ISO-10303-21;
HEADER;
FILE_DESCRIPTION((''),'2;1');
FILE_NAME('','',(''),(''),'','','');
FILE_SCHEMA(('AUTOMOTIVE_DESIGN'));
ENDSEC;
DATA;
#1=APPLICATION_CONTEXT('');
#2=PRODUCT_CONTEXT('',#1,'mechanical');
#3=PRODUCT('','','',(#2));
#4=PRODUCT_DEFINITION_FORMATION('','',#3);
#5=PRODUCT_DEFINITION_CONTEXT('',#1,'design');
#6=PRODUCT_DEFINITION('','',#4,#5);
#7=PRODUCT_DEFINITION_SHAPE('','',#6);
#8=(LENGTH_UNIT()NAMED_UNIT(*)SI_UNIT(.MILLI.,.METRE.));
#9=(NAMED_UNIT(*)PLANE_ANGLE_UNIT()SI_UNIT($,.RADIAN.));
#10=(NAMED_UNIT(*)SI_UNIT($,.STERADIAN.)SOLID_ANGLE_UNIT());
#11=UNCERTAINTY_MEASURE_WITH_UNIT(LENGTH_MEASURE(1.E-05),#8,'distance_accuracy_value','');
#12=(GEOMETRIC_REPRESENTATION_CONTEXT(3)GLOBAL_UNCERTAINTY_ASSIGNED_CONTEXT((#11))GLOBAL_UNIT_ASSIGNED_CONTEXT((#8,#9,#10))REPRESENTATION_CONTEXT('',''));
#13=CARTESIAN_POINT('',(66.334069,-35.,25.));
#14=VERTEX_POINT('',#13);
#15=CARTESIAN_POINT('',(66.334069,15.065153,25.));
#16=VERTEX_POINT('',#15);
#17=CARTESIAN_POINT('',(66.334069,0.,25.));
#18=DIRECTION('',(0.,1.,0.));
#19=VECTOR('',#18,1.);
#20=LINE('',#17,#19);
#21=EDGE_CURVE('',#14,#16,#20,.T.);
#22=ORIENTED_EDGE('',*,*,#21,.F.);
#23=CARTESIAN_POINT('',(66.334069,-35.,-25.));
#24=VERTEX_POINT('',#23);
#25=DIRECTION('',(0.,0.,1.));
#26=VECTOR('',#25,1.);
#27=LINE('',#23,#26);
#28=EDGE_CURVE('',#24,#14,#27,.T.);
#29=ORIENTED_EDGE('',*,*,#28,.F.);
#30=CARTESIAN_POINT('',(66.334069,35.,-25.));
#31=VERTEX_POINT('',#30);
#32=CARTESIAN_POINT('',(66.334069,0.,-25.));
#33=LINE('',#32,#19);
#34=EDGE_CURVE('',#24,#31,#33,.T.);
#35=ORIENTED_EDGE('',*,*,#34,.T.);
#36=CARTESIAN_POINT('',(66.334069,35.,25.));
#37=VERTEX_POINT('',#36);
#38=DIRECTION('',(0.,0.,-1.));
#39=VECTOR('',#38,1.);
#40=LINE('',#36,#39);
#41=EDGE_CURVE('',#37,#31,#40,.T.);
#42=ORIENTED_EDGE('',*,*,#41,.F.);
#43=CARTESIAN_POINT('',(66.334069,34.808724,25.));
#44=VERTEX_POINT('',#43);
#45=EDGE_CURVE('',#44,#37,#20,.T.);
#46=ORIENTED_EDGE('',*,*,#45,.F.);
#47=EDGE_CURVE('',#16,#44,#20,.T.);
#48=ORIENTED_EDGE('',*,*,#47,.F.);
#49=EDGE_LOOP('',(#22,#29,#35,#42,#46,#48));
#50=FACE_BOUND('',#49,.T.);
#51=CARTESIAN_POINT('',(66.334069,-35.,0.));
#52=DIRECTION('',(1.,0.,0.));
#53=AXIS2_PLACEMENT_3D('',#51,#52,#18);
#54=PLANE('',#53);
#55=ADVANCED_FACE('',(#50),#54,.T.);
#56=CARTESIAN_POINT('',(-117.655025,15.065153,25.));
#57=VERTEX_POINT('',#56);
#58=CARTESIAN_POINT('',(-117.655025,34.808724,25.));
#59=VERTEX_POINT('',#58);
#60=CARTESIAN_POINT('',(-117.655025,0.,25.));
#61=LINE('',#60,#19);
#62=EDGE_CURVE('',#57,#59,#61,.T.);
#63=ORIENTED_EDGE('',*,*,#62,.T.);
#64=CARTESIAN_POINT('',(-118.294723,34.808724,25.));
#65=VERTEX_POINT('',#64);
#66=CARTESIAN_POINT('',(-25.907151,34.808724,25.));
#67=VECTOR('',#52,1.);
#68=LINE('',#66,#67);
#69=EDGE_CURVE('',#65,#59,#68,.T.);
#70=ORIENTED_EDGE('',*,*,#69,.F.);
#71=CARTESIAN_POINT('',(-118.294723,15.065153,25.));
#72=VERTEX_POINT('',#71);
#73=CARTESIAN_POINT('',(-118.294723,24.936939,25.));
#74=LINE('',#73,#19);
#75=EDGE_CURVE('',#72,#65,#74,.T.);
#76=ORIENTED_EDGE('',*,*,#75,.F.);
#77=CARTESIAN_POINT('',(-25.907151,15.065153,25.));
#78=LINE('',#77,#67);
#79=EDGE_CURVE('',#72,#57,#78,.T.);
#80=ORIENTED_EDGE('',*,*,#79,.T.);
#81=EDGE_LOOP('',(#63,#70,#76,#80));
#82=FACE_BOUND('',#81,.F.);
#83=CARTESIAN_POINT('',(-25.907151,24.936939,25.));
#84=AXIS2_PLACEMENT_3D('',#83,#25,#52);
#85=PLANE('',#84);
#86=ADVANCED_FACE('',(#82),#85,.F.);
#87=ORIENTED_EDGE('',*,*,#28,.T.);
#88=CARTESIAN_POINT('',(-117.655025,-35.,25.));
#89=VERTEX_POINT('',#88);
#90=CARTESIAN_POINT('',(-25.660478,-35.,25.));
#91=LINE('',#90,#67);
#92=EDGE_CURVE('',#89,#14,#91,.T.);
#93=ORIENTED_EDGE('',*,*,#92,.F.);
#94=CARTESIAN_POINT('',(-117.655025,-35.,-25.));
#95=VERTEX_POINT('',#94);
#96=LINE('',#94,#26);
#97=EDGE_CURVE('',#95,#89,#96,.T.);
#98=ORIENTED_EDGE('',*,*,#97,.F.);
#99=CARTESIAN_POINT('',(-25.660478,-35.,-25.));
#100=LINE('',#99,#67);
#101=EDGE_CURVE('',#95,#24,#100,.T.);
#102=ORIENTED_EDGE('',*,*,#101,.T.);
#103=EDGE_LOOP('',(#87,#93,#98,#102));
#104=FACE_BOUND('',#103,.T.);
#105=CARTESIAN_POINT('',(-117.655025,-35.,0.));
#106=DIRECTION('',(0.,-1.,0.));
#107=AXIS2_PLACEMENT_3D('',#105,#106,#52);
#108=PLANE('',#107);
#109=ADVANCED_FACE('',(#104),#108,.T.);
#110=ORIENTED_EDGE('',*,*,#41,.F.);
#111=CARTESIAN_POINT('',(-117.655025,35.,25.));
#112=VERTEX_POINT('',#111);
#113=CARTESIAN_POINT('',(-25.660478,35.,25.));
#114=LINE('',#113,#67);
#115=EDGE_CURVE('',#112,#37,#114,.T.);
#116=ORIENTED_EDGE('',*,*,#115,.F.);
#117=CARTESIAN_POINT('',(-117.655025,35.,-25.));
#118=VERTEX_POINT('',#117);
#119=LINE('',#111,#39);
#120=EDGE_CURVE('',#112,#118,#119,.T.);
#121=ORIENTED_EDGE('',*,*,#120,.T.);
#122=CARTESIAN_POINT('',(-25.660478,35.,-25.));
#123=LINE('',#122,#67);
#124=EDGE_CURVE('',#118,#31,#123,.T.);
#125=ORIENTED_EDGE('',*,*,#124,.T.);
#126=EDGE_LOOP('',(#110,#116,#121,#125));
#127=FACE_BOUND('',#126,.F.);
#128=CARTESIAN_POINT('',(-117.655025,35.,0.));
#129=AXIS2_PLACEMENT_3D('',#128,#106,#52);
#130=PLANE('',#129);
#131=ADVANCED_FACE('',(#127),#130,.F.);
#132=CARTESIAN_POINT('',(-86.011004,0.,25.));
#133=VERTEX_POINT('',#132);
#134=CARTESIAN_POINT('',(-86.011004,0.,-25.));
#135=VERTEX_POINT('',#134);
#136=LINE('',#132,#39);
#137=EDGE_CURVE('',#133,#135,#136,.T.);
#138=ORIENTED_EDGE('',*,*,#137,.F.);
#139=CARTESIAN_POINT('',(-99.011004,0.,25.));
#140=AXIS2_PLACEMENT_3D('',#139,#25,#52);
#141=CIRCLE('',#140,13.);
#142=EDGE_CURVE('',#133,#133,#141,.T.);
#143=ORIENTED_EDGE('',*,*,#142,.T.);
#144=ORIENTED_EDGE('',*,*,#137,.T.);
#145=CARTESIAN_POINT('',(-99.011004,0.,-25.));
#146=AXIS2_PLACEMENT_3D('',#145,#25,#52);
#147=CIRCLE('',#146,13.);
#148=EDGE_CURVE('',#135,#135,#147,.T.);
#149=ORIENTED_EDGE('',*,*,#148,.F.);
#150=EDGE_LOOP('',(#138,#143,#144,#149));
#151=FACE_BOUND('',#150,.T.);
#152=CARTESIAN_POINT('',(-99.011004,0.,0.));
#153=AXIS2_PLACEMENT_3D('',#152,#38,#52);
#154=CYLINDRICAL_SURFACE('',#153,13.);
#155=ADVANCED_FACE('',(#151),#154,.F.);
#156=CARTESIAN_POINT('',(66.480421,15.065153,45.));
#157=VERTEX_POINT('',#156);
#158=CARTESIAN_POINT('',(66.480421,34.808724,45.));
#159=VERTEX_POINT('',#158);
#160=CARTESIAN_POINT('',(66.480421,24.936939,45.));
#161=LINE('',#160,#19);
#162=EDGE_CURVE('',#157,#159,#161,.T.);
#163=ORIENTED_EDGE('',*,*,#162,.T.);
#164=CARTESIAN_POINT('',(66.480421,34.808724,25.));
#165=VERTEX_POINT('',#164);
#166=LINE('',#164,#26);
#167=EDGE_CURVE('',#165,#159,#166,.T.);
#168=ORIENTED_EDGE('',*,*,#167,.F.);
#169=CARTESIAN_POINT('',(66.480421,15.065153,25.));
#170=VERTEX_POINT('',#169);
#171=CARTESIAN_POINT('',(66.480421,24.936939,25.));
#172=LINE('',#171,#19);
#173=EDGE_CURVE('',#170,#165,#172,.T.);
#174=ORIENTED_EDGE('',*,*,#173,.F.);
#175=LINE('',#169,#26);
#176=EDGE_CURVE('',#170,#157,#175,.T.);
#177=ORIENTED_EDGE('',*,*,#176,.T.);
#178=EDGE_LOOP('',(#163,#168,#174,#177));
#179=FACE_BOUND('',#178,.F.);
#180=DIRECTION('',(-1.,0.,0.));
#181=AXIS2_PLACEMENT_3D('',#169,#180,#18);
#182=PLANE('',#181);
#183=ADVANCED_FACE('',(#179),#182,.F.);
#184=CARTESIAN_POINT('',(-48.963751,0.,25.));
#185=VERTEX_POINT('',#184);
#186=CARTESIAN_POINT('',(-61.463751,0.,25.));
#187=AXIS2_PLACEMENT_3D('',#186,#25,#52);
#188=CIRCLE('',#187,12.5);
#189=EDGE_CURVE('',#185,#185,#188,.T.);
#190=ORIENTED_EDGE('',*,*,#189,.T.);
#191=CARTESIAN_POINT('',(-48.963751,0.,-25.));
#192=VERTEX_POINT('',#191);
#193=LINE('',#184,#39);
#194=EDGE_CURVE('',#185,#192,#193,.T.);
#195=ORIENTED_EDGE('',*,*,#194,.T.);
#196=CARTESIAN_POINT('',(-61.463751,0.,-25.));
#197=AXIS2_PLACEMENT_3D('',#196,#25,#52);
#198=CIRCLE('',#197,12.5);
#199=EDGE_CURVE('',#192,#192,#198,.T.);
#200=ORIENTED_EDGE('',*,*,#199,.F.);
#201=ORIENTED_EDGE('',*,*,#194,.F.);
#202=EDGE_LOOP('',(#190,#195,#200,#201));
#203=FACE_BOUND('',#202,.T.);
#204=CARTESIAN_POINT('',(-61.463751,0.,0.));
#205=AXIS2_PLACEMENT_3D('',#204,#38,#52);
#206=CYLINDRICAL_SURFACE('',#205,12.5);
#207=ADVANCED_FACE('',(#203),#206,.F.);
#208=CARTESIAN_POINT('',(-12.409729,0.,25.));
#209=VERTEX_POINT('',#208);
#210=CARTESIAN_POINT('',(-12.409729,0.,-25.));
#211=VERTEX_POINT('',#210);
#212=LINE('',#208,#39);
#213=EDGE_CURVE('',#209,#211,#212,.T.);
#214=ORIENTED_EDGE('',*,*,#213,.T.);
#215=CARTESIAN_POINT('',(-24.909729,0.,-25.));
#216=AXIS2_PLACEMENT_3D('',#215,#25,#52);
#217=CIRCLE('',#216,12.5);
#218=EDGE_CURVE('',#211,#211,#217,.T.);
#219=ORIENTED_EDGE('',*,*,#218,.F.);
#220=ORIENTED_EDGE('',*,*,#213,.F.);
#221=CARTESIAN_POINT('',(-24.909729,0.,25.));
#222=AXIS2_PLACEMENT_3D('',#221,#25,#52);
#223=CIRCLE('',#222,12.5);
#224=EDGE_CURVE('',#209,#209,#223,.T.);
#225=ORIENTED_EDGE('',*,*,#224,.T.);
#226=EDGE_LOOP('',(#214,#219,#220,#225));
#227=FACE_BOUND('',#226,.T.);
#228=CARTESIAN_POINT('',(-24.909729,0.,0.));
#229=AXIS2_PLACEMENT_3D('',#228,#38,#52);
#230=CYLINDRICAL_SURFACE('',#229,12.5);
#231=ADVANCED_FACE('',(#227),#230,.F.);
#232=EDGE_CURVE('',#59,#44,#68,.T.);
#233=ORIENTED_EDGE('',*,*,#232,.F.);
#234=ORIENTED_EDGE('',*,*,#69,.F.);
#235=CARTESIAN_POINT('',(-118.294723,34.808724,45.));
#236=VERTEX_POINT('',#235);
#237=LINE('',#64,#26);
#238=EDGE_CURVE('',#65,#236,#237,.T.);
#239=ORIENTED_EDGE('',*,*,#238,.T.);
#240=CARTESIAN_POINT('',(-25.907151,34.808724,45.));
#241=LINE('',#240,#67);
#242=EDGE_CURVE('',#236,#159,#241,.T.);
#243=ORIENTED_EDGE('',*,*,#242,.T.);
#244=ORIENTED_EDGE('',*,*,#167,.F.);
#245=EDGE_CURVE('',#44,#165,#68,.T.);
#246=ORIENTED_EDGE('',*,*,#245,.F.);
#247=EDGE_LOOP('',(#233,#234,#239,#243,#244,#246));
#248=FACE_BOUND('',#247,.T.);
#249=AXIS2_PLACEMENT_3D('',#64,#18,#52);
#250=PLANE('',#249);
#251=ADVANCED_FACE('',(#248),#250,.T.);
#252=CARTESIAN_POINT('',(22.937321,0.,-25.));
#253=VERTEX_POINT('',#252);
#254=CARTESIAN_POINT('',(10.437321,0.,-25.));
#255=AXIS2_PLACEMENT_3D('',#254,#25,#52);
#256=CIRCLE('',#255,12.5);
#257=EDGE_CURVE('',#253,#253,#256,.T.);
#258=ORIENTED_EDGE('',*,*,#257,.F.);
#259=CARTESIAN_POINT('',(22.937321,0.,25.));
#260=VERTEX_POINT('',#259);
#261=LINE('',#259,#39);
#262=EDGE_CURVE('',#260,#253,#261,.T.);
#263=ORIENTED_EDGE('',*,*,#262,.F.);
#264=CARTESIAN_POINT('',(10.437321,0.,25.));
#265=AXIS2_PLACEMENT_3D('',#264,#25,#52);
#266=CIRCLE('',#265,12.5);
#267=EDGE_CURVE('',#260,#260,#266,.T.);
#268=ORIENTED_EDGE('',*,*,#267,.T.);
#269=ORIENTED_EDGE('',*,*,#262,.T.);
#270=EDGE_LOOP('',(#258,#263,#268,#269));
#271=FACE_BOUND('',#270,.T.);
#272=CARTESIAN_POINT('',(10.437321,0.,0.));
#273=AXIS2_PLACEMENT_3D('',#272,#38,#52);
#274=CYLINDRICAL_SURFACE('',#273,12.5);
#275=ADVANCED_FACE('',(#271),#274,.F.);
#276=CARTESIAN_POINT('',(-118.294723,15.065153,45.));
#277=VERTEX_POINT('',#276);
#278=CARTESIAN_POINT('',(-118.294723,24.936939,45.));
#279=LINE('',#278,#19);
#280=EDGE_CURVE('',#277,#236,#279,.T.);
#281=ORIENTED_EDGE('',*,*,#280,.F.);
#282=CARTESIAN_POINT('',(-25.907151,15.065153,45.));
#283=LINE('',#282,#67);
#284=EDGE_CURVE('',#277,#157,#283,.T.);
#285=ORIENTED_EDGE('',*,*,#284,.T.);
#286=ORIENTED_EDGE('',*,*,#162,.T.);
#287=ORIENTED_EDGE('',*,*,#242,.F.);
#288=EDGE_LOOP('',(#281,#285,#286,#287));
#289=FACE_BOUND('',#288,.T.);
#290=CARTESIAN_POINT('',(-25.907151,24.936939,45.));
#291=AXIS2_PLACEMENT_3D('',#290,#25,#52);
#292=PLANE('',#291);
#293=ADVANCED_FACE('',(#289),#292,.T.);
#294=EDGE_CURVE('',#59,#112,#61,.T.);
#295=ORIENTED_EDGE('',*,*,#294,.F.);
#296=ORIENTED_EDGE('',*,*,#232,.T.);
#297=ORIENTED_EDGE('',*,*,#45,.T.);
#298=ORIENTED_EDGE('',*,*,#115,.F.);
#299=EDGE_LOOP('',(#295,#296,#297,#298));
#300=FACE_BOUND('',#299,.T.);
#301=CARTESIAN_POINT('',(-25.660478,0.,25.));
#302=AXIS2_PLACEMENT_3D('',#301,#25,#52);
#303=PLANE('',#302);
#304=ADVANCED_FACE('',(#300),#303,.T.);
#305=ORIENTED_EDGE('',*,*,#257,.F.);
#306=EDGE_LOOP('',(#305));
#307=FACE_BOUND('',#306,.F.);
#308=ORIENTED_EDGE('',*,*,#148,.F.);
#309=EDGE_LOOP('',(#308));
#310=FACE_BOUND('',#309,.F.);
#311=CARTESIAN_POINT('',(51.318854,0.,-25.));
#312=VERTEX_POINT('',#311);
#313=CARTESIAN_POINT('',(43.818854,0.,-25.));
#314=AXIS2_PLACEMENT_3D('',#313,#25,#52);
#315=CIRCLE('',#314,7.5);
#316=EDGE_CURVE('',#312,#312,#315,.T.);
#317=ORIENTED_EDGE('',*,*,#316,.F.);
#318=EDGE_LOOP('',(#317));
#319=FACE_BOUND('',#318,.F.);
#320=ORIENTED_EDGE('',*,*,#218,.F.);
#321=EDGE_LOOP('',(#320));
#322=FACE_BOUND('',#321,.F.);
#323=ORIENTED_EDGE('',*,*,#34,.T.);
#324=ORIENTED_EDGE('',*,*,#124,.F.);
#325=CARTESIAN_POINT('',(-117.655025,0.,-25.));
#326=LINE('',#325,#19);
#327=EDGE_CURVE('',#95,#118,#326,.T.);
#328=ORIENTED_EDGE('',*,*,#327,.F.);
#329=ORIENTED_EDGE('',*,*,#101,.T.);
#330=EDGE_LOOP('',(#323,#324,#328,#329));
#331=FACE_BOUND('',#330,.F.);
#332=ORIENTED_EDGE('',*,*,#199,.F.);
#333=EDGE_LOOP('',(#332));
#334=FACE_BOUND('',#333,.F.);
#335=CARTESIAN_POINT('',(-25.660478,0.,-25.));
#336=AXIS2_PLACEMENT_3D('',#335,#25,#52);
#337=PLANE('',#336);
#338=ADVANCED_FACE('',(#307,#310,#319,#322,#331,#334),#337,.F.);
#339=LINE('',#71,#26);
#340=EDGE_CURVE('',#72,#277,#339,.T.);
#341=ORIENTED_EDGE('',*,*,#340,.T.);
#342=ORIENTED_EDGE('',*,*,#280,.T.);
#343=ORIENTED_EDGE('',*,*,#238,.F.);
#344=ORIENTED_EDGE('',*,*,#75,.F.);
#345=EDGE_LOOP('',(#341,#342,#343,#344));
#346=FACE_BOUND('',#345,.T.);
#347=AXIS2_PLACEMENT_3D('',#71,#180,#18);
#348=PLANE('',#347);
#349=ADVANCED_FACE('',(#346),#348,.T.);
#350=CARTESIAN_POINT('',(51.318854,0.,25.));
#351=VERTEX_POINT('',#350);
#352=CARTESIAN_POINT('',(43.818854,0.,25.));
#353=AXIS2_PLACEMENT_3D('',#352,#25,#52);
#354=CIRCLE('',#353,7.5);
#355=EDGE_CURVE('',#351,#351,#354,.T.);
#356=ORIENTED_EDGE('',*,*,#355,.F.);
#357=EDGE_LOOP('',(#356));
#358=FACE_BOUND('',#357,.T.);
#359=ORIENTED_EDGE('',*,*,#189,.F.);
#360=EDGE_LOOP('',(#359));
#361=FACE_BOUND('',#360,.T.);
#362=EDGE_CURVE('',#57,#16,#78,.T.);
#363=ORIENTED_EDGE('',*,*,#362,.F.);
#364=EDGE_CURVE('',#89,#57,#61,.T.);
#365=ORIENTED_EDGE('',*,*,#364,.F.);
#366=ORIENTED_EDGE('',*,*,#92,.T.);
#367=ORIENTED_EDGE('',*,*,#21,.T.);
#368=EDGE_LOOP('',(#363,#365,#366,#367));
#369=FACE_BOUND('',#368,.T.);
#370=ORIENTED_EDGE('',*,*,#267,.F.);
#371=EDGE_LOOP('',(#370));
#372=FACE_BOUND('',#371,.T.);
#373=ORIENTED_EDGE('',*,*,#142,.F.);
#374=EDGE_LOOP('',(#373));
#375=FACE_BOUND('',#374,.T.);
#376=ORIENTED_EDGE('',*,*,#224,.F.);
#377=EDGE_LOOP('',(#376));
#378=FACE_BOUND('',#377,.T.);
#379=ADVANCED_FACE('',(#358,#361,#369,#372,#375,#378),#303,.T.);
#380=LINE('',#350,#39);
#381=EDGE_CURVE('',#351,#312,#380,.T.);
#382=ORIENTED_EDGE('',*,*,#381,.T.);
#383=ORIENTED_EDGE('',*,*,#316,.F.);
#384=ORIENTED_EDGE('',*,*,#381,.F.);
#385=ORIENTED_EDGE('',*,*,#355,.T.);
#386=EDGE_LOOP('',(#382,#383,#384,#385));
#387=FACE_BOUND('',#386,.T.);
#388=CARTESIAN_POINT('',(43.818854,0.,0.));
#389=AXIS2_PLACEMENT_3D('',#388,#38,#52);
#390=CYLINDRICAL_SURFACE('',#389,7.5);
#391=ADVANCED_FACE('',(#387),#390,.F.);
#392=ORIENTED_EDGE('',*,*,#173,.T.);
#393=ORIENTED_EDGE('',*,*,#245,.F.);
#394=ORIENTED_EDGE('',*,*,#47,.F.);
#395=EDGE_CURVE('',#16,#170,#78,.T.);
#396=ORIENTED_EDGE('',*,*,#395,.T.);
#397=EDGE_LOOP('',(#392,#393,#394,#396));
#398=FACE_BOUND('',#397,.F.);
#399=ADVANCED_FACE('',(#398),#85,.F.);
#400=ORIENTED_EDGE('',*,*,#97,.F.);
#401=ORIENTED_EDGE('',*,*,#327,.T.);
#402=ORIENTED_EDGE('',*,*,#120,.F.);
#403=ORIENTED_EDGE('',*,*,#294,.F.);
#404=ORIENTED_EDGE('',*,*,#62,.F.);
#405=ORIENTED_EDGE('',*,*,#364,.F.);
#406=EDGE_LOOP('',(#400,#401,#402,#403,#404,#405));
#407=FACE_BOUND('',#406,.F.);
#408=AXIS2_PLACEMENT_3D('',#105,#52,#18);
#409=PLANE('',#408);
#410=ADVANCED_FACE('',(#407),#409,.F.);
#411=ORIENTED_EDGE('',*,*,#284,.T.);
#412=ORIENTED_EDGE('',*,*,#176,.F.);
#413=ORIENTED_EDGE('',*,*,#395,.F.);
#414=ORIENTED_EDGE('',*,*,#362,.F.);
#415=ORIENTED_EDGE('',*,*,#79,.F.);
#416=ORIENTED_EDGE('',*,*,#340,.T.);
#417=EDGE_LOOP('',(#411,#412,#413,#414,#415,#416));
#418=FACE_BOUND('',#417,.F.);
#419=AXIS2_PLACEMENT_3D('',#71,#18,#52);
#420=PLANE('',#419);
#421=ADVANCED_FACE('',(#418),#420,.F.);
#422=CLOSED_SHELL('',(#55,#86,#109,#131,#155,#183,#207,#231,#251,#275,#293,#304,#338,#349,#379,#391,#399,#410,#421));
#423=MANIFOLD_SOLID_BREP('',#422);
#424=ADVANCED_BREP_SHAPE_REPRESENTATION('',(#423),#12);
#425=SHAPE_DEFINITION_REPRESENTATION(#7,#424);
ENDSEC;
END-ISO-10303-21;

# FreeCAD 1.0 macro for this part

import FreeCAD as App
import Part
import Sketcher
from FreeCAD import Vector


def add_polygon(sketch, points):
    """Adds a closed chain of lines whose ends are joined by coincident constraints."""
    first, n = sketch.GeometryCount, len(points)
    for a, b in zip(points, points[1:] + points[:1]):
        sketch.addGeometry(Part.LineSegment(App.Vector(*a, 0), App.Vector(*b, 0)), False)
    for i in range(n):
        sketch.addConstraint(Sketcher.Constraint("Coincident", first + i, 2, first + (i + 1) % n, 1))

doc = App.newDocument("Part")
body = doc.addObject("PartDesign::Body", "Body")

sketch1 = doc.addObject("Sketcher::SketchObject", "Sketch")
body.addObject(sketch1)
sketch1.AttachmentSupport = (doc.XY_Plane, [""])
sketch1.MapMode = "FlatFace"
add_polygon(sketch1, [(-118, 35), (-118, -35), (66, -35), (66, 35)])
sketch1.addGeometry(Part.Circle(Vector(-99, 0, 0), Vector(0, 0, 1), 13), False)
sketch1.addGeometry(Part.Circle(Vector(-61, 0, 0), Vector(0, 0, 1), 12), False)
sketch1.addGeometry(Part.Circle(Vector(-25, 0, 0), Vector(0, 0, 1), 12), False)
sketch1.addGeometry(Part.Circle(Vector(10, 0, 0), Vector(0, 0, 1), 12), False)
sketch1.addGeometry(Part.Circle(Vector(44, 0, 0), Vector(0, 0, 1), 8), False)
sketch1.addConstraint(Sketcher.Constraint("Vertical", 0))
sketch1.addConstraint(Sketcher.Constraint("Horizontal", 1))
sketch1.addConstraint(Sketcher.Constraint("Vertical", 2))
sketch1.addConstraint(Sketcher.Constraint("Horizontal", 3))
sketch1.addConstraint(Sketcher.Constraint("Equal", 5, 6))
sketch1.addConstraint(Sketcher.Constraint("Equal", 6, 7))
sketch1.addConstraint(Sketcher.Constraint("PointOnObject", 4, 3, -1))
sketch1.addConstraint(Sketcher.Constraint("PointOnObject", 5, 3, -1))
sketch1.addConstraint(Sketcher.Constraint("PointOnObject", 6, 3, -1))
sketch1.addConstraint(Sketcher.Constraint("PointOnObject", 7, 3, -1))
sketch1.addConstraint(Sketcher.Constraint("PointOnObject", 8, 3, -1))
sketch1.addConstraint(Sketcher.Constraint("Diameter", 4, 26.0))
sketch1.addConstraint(Sketcher.Constraint("Diameter", 5, 25.0))
sketch1.addConstraint(Sketcher.Constraint("Diameter", 8, 15.0))
sketch1.addConstraint(Sketcher.Constraint("DistanceY", 0, 2, 0, 1, 70.0))
sketch1.addConstraint(Sketcher.Constraint("DistanceY", 0, 2, -1, 1, 35.0))
sketch1.addConstraint(Sketcher.Constraint("DistanceX", 6, 3, 1, 2, 91.243798))
sketch1.addConstraint(Sketcher.Constraint("DistanceX", 1, 1, 1, 2, 183.989095))
sketch1.addConstraint(Sketcher.Constraint("DistanceX", 5, 3, -1, 1, 61.463751))
sketch1.addConstraint(Sketcher.Constraint("DistanceX", 6, 3, -1, 1, 24.909729))
sketch1.addConstraint(Sketcher.Constraint("DistanceX", -1, 1, 7, 3, 10.437321))
sketch1.addConstraint(Sketcher.Constraint("DistanceX", 4, 3, 8, 3, 142.829858))
sketch1.addConstraint(Sketcher.Constraint("DistanceX", 0, 2, 4, 3, 18.644021))
pad1 = doc.addObject("PartDesign::Pad", "Pad")
body.addObject(pad1)
pad1.Profile = sketch1
pad1.Length = 50
pad1.Midplane = True

sketch2 = doc.addObject("Sketcher::SketchObject", "Sketch001")
body.addObject(sketch2)
sketch2.AttachmentSupport = (doc.XY_Plane, [""])
sketch2.MapMode = "FlatFace"
sketch2.AttachmentOffset = App.Placement(Vector(0, 0, 25), App.Rotation())
add_polygon(sketch2, [(-118, 35), (-118, 15), (66, 15), (66, 35)])
sketch2.addConstraint(Sketcher.Constraint("Vertical", 0))
sketch2.addConstraint(Sketcher.Constraint("Horizontal", 1))
sketch2.addConstraint(Sketcher.Constraint("Vertical", 2))
sketch2.addConstraint(Sketcher.Constraint("Horizontal", 3))
sketch2.addConstraint(Sketcher.Constraint("DistanceY", 0, 2, 0, 1, 19.743571))
sketch2.addConstraint(Sketcher.Constraint("DistanceX", 1, 1, 1, 2, 184.775144))
sketch2.addConstraint(Sketcher.Constraint("DistanceX", -1, 1, 1, 2, 66.480421))
sketch2.addConstraint(Sketcher.Constraint("DistanceY", -1, 1, 0, 2, 15.065153))
pad2 = doc.addObject("PartDesign::Pad", "Pad001")
body.addObject(pad2)
pad2.Profile = sketch2
pad2.Length = 20

doc.recompute()
